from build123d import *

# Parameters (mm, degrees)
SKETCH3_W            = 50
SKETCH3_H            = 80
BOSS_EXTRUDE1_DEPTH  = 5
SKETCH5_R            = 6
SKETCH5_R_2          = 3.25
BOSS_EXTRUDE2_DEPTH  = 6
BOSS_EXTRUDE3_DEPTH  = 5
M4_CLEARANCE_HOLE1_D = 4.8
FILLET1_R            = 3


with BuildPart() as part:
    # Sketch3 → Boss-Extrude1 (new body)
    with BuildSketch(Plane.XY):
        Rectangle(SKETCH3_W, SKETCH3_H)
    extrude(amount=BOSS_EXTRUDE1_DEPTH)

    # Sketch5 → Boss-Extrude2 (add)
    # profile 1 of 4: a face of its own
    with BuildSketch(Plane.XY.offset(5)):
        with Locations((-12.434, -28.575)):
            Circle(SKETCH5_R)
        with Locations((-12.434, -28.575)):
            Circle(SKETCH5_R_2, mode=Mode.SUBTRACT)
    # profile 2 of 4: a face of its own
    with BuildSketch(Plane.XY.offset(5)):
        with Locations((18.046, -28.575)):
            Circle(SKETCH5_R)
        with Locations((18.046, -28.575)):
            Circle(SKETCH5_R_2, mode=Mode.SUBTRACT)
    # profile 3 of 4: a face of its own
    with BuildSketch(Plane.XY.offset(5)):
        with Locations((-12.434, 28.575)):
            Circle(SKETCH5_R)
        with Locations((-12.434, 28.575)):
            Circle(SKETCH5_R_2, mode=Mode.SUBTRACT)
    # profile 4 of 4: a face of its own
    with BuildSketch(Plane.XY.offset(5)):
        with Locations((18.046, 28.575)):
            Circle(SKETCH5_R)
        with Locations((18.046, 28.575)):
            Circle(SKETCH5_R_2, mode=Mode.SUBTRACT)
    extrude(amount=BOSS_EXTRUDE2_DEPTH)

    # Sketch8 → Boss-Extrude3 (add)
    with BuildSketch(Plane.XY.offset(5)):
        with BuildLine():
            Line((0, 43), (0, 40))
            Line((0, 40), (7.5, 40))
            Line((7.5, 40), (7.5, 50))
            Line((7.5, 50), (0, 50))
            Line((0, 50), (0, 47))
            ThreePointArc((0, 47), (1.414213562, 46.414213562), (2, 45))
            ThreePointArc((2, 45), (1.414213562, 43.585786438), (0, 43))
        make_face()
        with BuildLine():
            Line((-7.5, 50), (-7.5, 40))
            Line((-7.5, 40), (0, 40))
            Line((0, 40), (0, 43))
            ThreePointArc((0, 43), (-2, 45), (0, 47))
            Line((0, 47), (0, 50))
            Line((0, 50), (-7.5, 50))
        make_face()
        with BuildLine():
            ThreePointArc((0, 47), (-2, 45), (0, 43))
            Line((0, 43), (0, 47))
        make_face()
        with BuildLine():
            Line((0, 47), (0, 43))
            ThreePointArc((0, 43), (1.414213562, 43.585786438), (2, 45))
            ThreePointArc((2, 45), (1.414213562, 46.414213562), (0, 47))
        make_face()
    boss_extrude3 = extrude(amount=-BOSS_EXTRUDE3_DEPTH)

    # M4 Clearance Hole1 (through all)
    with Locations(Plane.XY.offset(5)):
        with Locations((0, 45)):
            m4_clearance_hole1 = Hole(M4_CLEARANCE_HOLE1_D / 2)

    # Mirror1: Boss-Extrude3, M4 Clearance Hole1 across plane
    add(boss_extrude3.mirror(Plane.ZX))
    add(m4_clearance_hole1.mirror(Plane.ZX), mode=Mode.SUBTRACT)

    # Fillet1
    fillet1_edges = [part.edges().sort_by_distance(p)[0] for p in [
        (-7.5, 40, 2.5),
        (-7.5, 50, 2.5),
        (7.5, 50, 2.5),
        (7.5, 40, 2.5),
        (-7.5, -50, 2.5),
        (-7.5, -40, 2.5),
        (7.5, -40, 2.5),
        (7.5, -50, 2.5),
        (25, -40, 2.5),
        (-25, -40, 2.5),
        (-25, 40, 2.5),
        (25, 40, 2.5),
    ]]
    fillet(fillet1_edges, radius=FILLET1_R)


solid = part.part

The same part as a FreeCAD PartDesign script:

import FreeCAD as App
import Part
import Sketcher
from FreeCAD import Vector


def edges_at(feature, points):
    """Names of the edges that pass closest to the given points."""
    edges = feature.Shape.Edges
    near = lambda p: min(range(len(edges)), key=lambda i: edges[i].distToShape(Part.Vertex(*p))[0])
    return sorted({f"Edge{near(p) + 1}" for p in points})


def add_polygon(sketch, points):
    """Adds a closed chain of lines whose ends are joined by coincident constraints."""
    first, n = sketch.GeometryCount, len(points)
    for a, b in zip(points, points[1:] + points[:1]):
        sketch.addGeometry(Part.LineSegment(App.Vector(*a, 0), App.Vector(*b, 0)), False)
    for i in range(n):
        sketch.addConstraint(Sketcher.Constraint("Coincident", first + i, 2, first + (i + 1) % n, 1))

doc = App.newDocument("Part")
body = doc.addObject("PartDesign::Body", "Body")

# Sketch on XY plane
sketch1 = body.newObject("Sketcher::SketchObject", "Sketch")
sketch1.AttachmentSupport = (doc.getObject("XY_Plane"), [""])
sketch1.MapMode = "FlatFace"
add_polygon(sketch1, [(-25, 40), (-25, -40), (25, -40), (25, 40)])  # lines 0-3
sketch1.addConstraint([
    Sketcher.Constraint("Vertical", 0),
    Sketcher.Constraint("Horizontal", 1),
    Sketcher.Constraint("Vertical", 2),
    Sketcher.Constraint("Horizontal", 3),
    Sketcher.Constraint("Symmetric", 0, 2, 2, 2, -1, 1),
    Sketcher.Constraint("DistanceX", 1, 1, 1, 2, 50.0),
    Sketcher.Constraint("DistanceY", 0, 2, 0, 1, 80.0),
])
pad1 = body.newObject("PartDesign::Pad", "Pad")
pad1.Profile = sketch1
pad1.Length = 5

# Sketch on XY plane
sketch2 = body.newObject("Sketcher::SketchObject", "Sketch001")
sketch2.AttachmentSupport = (doc.getObject("XY_Plane"), [""])
sketch2.MapMode = "FlatFace"
sketch2.AttachmentOffset = App.Placement(Vector(0, 0, 5), App.Rotation())
sketch2.addGeometry([
    Part.Circle(Vector(-12.4, -28.6, 0), Vector(0, 0, 1), 6),  # 0
    Part.Circle(Vector(-12.4, -28.6, 0), Vector(0, 0, 1), 3.2),  # 1
    Part.Circle(Vector(18, -28.6, 0), Vector(0, 0, 1), 6),  # 2
    Part.Circle(Vector(18, -28.6, 0), Vector(0, 0, 1), 3.2),  # 3
    Part.Circle(Vector(-12.4, 28.6, 0), Vector(0, 0, 1), 6),  # 4
    Part.Circle(Vector(-12.4, 28.6, 0), Vector(0, 0, 1), 3.2),  # 5
    Part.Circle(Vector(18, 28.6, 0), Vector(0, 0, 1), 6),  # 6
    Part.Circle(Vector(18, 28.6, 0), Vector(0, 0, 1), 3.2),  # 7
], False)
sketch2.addConstraint([
    Sketcher.Constraint("Coincident", 1, 3, 0, 3),
    Sketcher.Constraint("Coincident", 3, 3, 2, 3),
    Sketcher.Constraint("Coincident", 5, 3, 4, 3),
    Sketcher.Constraint("Coincident", 7, 3, 6, 3),
    Sketcher.Constraint("Equal", 0, 2),
    Sketcher.Constraint("Equal", 1, 3),
    Sketcher.Constraint("Equal", 2, 4),
    Sketcher.Constraint("Equal", 3, 5),
    Sketcher.Constraint("Equal", 4, 6),
    Sketcher.Constraint("Equal", 5, 7),
    Sketcher.Constraint("Symmetric", 0, 3, 4, 3, -1),
    Sketcher.Constraint("Symmetric", 2, 3, 6, 3, -1),
    Sketcher.Constraint("Horizontal", 1, 3, 2, 3),
    Sketcher.Constraint("Diameter", 0, 12.0),
    Sketcher.Constraint("Diameter", 1, 6.5),
    Sketcher.Constraint("DistanceX", 0, 3, 2, 3, 30.48),
    Sketcher.Constraint("DistanceY", 0, 3, 4, 3, 57.15),
    Sketcher.Constraint("DistanceX", 0, 3, -1, 1, 12.434),
])
pad2 = body.newObject("PartDesign::Pad", "Pad001")
pad2.Profile = sketch2
pad2.Length = 6

# Sketch on XY plane
sketch3 = body.newObject("Sketcher::SketchObject", "Sketch002")
sketch3.AttachmentSupport = (doc.getObject("XY_Plane"), [""])
sketch3.MapMode = "FlatFace"
sketch3.AttachmentOffset = App.Placement(Vector(0, 0, 5), App.Rotation())
add_polygon(sketch3, [(8, 40), (8, 50), (-8, 50), (-8, 40)])  # lines 0-3
sketch3.addConstraint([
    Sketcher.Constraint("Vertical", 0),
    Sketcher.Constraint("Horizontal", 1),
    Sketcher.Constraint("Vertical", 2),
    Sketcher.Constraint("Horizontal", 3),
    Sketcher.Constraint("DistanceX", 1, 2, 1, 1, 15.0),
    Sketcher.Constraint("DistanceY", 0, 1, 0, 2, 10.0),
    Sketcher.Constraint("DistanceY", -1, 1, 0, 2, 50.0),
    Sketcher.Constraint("DistanceX", -1, 1, 0, 2, 7.5),
])
pad3 = body.newObject("PartDesign::Pad", "Pad002")
pad3.Profile = sketch3
pad3.Length = 5
pad3.Reversed = True

# Sketch on XY plane
sketch4 = body.newObject("Sketcher::SketchObject", "Sketch003")
sketch4.AttachmentSupport = (doc.getObject("XY_Plane"), [""])
sketch4.MapMode = "FlatFace"
sketch4.AttachmentOffset = App.Placement(Vector(0, 0, 5), App.Rotation())
sketch4.addGeometry(Part.Circle(Vector(0, 45, 0), Vector(0, 0, 1), 2.4), False)
sketch4.addConstraint([
    Sketcher.Constraint("PointOnObject", 0, 3, -2),
    Sketcher.Constraint("Diameter", 0, 4.8),
    Sketcher.Constraint("DistanceY", -1, 1, 0, 3, 45.0),
])
doc.recompute()
hole = body.newObject("PartDesign::Hole", "Hole")
hole.Profile = sketch4
hole.ThreadType = "None"
hole.Diameter = 4.8
hole.DepthType = "ThroughAll"
doc.recompute()

mirrored = body.newObject("PartDesign::Mirrored", "Mirrored")
mirrored.Originals = [pad3, hole]
mirrored.MirrorPlane = (doc.getObject("XZ_Plane"), [""])
body.Tip = mirrored
doc.recompute()

fillet = body.newObject("PartDesign::Fillet", "Fillet")
fillet.Base = (mirrored, edges_at(mirrored, [
    (-7.5, 40, 2.5),
    (-7.5, 50, 2.5),
    (7.5, 50, 2.5),
    (7.5, 40, 2.5),
    (-7.5, -50, 2.5),
    (-7.5, -40, 2.5),
    (7.5, -40, 2.5),
    (7.5, -50, 2.5),
    (25, -40, 2.5),
    (-25, -40, 2.5),
    (-25, 40, 2.5),
    (25, 40, 2.5),
]))
fillet.Radius = 3

doc.recompute()
